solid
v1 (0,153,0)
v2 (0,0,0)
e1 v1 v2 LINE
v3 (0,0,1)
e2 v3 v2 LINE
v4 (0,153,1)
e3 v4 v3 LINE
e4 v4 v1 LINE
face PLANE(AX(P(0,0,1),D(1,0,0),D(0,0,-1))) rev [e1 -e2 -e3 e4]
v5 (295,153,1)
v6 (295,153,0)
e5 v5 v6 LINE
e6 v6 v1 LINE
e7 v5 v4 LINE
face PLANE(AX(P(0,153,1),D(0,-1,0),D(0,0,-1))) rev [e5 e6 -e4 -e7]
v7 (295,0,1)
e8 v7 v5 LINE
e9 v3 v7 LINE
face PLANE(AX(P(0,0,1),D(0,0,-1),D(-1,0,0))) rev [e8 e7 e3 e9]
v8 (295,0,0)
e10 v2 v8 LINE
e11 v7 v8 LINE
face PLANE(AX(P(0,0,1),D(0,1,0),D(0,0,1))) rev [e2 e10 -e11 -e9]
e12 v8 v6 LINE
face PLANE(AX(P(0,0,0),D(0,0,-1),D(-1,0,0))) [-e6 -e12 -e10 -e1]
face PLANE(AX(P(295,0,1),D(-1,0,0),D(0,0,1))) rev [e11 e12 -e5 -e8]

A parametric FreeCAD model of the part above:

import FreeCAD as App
import Part
import Sketcher
from FreeCAD import Vector
Q = App.Units.Quantity

doc = App.newDocument("Part")
body = doc.addObject("PartDesign::Body", "Body")

# Sketch on XY plane
sketch1 = body.newObject("Sketcher::SketchObject", "Sketch")
sketch1.AttachmentSupport = (doc.getObject("XY_Plane"), [""])
sketch1.MapMode = "FlatFace"
sketch1.addGeometry([
    Part.LineSegment(Vector(0, 153, 0), Vector(0, 0, 0)),
    Part.LineSegment(Vector(0, 0, 0), Vector(295, 0, 0)),
    Part.LineSegment(Vector(295, 0, 0), Vector(295, 153, 0)),
    Part.LineSegment(Vector(295, 153, 0), Vector(0, 153, 0)),
], False)
sketch1.addConstraint([
    Sketcher.Constraint("Coincident", 0, 2, 1, 1),
    Sketcher.Constraint("Coincident", 1, 2, 2, 1),
    Sketcher.Constraint("Coincident", 2, 2, 3, 1),
    Sketcher.Constraint("Coincident", 3, 2, 0, 1),
    Sketcher.Constraint("Vertical", 0),
    Sketcher.Constraint("Horizontal", 1),
    Sketcher.Constraint("Vertical", 2),
    Sketcher.Constraint("Horizontal", 3),
    Sketcher.Constraint("Coincident", 0, 2, -1, 1),
    Sketcher.Constraint("DistanceX", 1, 1, 1, 2, Q("295 mm")),
    Sketcher.Constraint("DistanceY", 0, 2, 0, 1, Q("153 mm")),
])
pad1 = body.newObject("PartDesign::Pad", "Pad")
pad1.Profile = sketch1
pad1.Length = 1

doc.recompute()
